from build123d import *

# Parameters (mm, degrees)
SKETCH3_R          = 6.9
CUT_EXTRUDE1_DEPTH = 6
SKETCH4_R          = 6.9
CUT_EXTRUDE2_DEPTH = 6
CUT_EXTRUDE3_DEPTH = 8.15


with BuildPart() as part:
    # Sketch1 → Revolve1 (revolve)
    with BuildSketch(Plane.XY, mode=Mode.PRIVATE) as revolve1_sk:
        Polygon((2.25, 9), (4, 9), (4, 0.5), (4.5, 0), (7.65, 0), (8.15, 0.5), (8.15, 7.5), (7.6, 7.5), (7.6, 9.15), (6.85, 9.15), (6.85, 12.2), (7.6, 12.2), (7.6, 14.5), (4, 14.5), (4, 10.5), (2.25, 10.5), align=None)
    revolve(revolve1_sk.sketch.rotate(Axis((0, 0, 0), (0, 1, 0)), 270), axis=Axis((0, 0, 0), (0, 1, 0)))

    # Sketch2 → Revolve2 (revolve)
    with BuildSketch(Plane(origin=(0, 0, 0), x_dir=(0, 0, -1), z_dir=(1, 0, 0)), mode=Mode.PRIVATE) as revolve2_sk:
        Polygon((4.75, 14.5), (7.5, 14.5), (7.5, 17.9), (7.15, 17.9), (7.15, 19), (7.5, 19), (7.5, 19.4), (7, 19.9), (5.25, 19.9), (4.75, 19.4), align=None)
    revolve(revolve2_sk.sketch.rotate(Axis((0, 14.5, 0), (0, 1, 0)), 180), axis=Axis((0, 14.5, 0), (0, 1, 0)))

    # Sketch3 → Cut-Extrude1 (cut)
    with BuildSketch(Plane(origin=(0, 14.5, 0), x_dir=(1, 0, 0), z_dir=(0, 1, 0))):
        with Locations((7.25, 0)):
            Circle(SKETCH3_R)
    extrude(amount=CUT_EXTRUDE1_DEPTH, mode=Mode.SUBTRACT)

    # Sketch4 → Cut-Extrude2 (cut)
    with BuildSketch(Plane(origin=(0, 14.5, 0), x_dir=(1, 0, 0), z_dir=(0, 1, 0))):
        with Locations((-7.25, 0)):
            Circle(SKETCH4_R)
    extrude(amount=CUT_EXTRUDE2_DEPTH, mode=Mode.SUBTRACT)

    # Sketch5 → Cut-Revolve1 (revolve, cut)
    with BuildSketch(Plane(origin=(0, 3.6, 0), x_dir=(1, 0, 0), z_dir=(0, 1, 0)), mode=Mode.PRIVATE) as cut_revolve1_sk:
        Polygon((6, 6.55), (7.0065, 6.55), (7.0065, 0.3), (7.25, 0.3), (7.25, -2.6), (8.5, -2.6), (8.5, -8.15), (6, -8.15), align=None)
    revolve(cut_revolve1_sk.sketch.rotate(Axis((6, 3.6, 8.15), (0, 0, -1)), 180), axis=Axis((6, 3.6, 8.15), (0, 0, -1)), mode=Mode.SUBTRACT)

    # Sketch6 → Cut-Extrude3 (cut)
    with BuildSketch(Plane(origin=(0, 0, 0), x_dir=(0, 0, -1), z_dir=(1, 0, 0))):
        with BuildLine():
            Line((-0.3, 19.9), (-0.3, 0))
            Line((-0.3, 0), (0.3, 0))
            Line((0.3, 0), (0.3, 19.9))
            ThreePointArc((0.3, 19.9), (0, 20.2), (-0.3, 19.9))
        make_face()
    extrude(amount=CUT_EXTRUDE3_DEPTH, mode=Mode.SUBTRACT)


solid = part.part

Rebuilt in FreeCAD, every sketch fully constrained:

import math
import FreeCAD as App
import Part
import Sketcher
from FreeCAD import Vector

doc = App.newDocument("Part")
params = doc.addObject("Spreadsheet::Sheet", "Params")
for row, (alias, value) in enumerate([
    ("sketch1_height", "7 mm"),
    ("sketch1_height2", "4 mm"),
    ("sketch1_width", "3.6 mm"),
    ("sketch1_height3", "8.5 mm"),
    ("sketch1_height4", "2.3 mm"),
    ("revolution_angle", "360 deg"),
    ("sketch2_width", "3.4 mm"),
    ("sketch2_width2", "1.1 mm"),
    ("sketch2_width3", "0.4 mm"),
    ("sketch2_height", "2.75 mm"),
    ("sketch2_height2", "0.35 mm"),
    ("revolution2_angle", "360 deg"),
    ("sketch3_diameter", "13.8 mm"),
    ("pocket1_length", "6 mm"),
    ("sketch4_diameter", "13.8 mm"),
    ("pocket2_length", "6 mm"),
    ("sketch5_width", "2.5 mm"),
    ("sketch5_height", "14.7 mm"),
    ("sketch5_height2", "2.9 mm"),
    ("sketch5_width2", "1.25 mm"),
    ("sketch5_height3", "5.55 mm"),
    ("groove_angle", "360 deg"),
    ("sketch6_radius", "0.3 mm"),
    ("sketch6_width", "19.9 mm"),
    ("pocket3_length", "8.15 mm"),
], start=1):
    params.set(f"A{row}", alias)
    params.set(f"B{row}", "=" + value)
    params.setAlias(f"B{row}", alias)

body = doc.addObject("PartDesign::Body", "Body")

# Sketch on XY plane
sketch1 = body.newObject("Sketcher::SketchObject", "Sketch")
sketch1.AttachmentSupport = (doc.getObject("XY_Plane"), [""])
sketch1.MapMode = "FlatFace"
sketch1.addGeometry([
    Part.LineSegment(Vector(2.2, 9, 0), Vector(4, 9, 0)),  # 0
    Part.LineSegment(Vector(4, 9, 0), Vector(4, 0.5, 0)),  # 1
    Part.LineSegment(Vector(4, 0.5, 0), Vector(4.5, 0, 0)),  # 2
    Part.LineSegment(Vector(4.5, 0, 0), Vector(7.7, 0, 0)),  # 3
    Part.LineSegment(Vector(7.7, 0, 0), Vector(8.2, 0.5, 0)),  # 4
    Part.LineSegment(Vector(8.2, 0.5, 0), Vector(8.2, 7.5, 0)),  # 5
    Part.LineSegment(Vector(8.2, 7.5, 0), Vector(7.6, 7.5, 0)),  # 6
    Part.LineSegment(Vector(7.6, 7.5, 0), Vector(7.6, 9.2, 0)),  # 7
    Part.LineSegment(Vector(7.6, 9.2, 0), Vector(6.8, 9.2, 0)),  # 8
    Part.LineSegment(Vector(6.8, 9.2, 0), Vector(6.8, 12.2, 0)),  # 9
    Part.LineSegment(Vector(6.8, 12.2, 0), Vector(7.6, 12.2, 0)),  # 10
    Part.LineSegment(Vector(7.6, 12.2, 0), Vector(7.6, 14.5, 0)),  # 11
    Part.LineSegment(Vector(7.6, 14.5, 0), Vector(4, 14.5, 0)),  # 12
    Part.LineSegment(Vector(4, 14.5, 0), Vector(4, 10.5, 0)),  # 13
    Part.LineSegment(Vector(4, 10.5, 0), Vector(2.2, 10.5, 0)),  # 14
    Part.LineSegment(Vector(2.2, 10.5, 0), Vector(2.2, 9, 0)),  # 15
], False)
sketch1.addConstraint([
    Sketcher.Constraint("Coincident", 0, 2, 1, 1),
    Sketcher.Constraint("Coincident", 1, 2, 2, 1),
    Sketcher.Constraint("Coincident", 2, 2, 3, 1),
    Sketcher.Constraint("Coincident", 3, 2, 4, 1),
    Sketcher.Constraint("Coincident", 4, 2, 5, 1),
    Sketcher.Constraint("Coincident", 5, 2, 6, 1),
    Sketcher.Constraint("Coincident", 6, 2, 7, 1),
    Sketcher.Constraint("Coincident", 7, 2, 8, 1),
    Sketcher.Constraint("Coincident", 8, 2, 9, 1),
    Sketcher.Constraint("Coincident", 9, 2, 10, 1),
    Sketcher.Constraint("Coincident", 10, 2, 11, 1),
    Sketcher.Constraint("Coincident", 11, 2, 12, 1),
    Sketcher.Constraint("Coincident", 12, 2, 13, 1),
    Sketcher.Constraint("Coincident", 13, 2, 14, 1),
    Sketcher.Constraint("Coincident", 14, 2, 15, 1),
    Sketcher.Constraint("Coincident", 15, 2, 0, 1),
    Sketcher.Constraint("Horizontal", 0),
    Sketcher.Constraint("Vertical", 1),
    Sketcher.Constraint("Horizontal", 3),
    Sketcher.Constraint("Vertical", 5),
    Sketcher.Constraint("Horizontal", 6),
    Sketcher.Constraint("Vertical", 7),
    Sketcher.Constraint("Horizontal", 8),
    Sketcher.Constraint("Vertical", 9),
    Sketcher.Constraint("Horizontal", 10),
    Sketcher.Constraint("Vertical", 11),
    Sketcher.Constraint("Horizontal", 12),
    Sketcher.Constraint("Vertical", 13),
    Sketcher.Constraint("Horizontal", 14),
    Sketcher.Constraint("Vertical", 15),
    Sketcher.Constraint("PointOnObject", 2, 2, -1),
    Sketcher.Constraint("Perpendicular", 2, 4),
    Sketcher.Constraint("Horizontal", 1, 2, 4, 2),
    Sketcher.Constraint("Vertical", 7, 2, 10, 2),
    Sketcher.Constraint("Vertical", 1, 2, 12, 2),
    Sketcher.Constraint("Equal", 2, 4),
    Sketcher.Constraint("DistanceY", 5, 1, 5, 2, 7.0),
    Sketcher.Constraint("DistanceY", 13, 2, 13, 1, 4.0),
    Sketcher.Constraint("DistanceX", 12, 2, 12, 1, 3.6),
    Sketcher.Constraint("DistanceY", 1, 2, 1, 1, 8.5),
    Sketcher.Constraint("DistanceY", 11, 1, 11, 2, 2.3),
    Sketcher.Constraint("DistanceY", 15, 2, 15, 1, 1.5),
    Sketcher.Constraint("DistanceX", -1, 1, 0, 2, 4.0),
    Sketcher.Constraint("DistanceY", -1, 1, 0, 2, 9.0),
    Sketcher.Constraint("DistanceX", 0, 1, 0, 2, 1.75),
    Sketcher.Constraint("DistanceX", 3, 1, 3, 2, 3.15),
    Sketcher.Constraint("DistanceX", 8, 2, 8, 1, 0.75),
    Sketcher.Constraint("DistanceY", 7, 1, 7, 2, 1.65),
])
sketch1.setExpression("Constraints[36]", "Params.sketch1_height")
sketch1.setExpression("Constraints[37]", "Params.sketch1_height2")
sketch1.setExpression("Constraints[38]", "Params.sketch1_width")
sketch1.setExpression("Constraints[39]", "Params.sketch1_height3")
sketch1.setExpression("Constraints[40]", "Params.sketch1_height4")
revolution = body.newObject("PartDesign::Revolution", "Revolution")
revolution.Profile = sketch1
revolution.ReferenceAxis = (sketch1, ["V_Axis"])
revolution.setExpression("Angle", "Params.revolution_angle")

# Sketch on YZ plane
sketch2 = body.newObject("Sketcher::SketchObject", "Sketch001")
sketch2.AttachmentSupport = (doc.getObject("YZ_Plane"), [""])
sketch2.MapMode = "FlatFace"
sketch2.addGeometry([
    Part.LineSegment(Vector(14.5, -4.75, 0), Vector(14.5, -7.5, 0)),  # 0
    Part.LineSegment(Vector(14.5, -7.5, 0), Vector(17.9, -7.5, 0)),  # 1
    Part.LineSegment(Vector(17.9, -7.5, 0), Vector(17.9, -7.15, 0)),  # 2
    Part.LineSegment(Vector(17.9, -7.15, 0), Vector(19, -7.15, 0)),  # 3
    Part.LineSegment(Vector(19, -7.15, 0), Vector(19, -7.5, 0)),  # 4
    Part.LineSegment(Vector(19, -7.5, 0), Vector(19.4, -7.5, 0)),  # 5
    Part.LineSegment(Vector(19.4, -7.5, 0), Vector(19.9, -7, 0)),  # 6
    Part.LineSegment(Vector(19.9, -7, 0), Vector(19.9, -5.25, 0)),  # 7
    Part.LineSegment(Vector(19.9, -5.25, 0), Vector(19.4, -4.75, 0)),  # 8
    Part.LineSegment(Vector(19.4, -4.75, 0), Vector(14.5, -4.75, 0)),  # 9
], False)
sketch2.addConstraint([
    Sketcher.Constraint("Coincident", 0, 2, 1, 1),
    Sketcher.Constraint("Coincident", 1, 2, 2, 1),
    Sketcher.Constraint("Coincident", 2, 2, 3, 1),
    Sketcher.Constraint("Coincident", 3, 2, 4, 1),
    Sketcher.Constraint("Coincident", 4, 2, 5, 1),
    Sketcher.Constraint("Coincident", 5, 2, 6, 1),
    Sketcher.Constraint("Coincident", 6, 2, 7, 1),
    Sketcher.Constraint("Coincident", 7, 2, 8, 1),
    Sketcher.Constraint("Coincident", 8, 2, 9, 1),
    Sketcher.Constraint("Coincident", 9, 2, 0, 1),
    Sketcher.Constraint("Vertical", 0),
    Sketcher.Constraint("Horizontal", 1),
    Sketcher.Constraint("Vertical", 2),
    Sketcher.Constraint("Horizontal", 3),
    Sketcher.Constraint("Vertical", 4),
    Sketcher.Constraint("Horizontal", 5),
    Sketcher.Constraint("Vertical", 7),
    Sketcher.Constraint("Horizontal", 9),
    Sketcher.Constraint("Perpendicular", 6, 8),
    Sketcher.Constraint("Horizontal", 1, 2, 4, 2),
    Sketcher.Constraint("Vertical", 5, 2, 8, 2),
    Sketcher.Constraint("Equal", 6, 8),
    Sketcher.Constraint("DistanceX", 1, 1, 1, 2, 3.4),
    Sketcher.Constraint("DistanceX", 3, 1, 3, 2, 1.1),
    Sketcher.Constraint("DistanceX", 5, 1, 5, 2, 0.4),
    Sketcher.Constraint("DistanceX", -1, 1, 3, 2, 19.0),
    Sketcher.Constraint("DistanceY", 6, 2, -1, 1, 7.0),
    Sketcher.Constraint("DistanceX", 2, 2, 6, 2, 2.0),
    Sketcher.Constraint("DistanceY", 0, 2, 0, 1, 2.75),
    Sketcher.Constraint("DistanceY", 2, 1, 2, 2, 0.35),
])
sketch2.setExpression("Constraints[22]", "Params.sketch2_width")
sketch2.setExpression("Constraints[23]", "Params.sketch2_width2")
sketch2.setExpression("Constraints[24]", "Params.sketch2_width3")
sketch2.setExpression("Constraints[28]", "Params.sketch2_height")
sketch2.setExpression("Constraints[29]", "Params.sketch2_height2")
revolution2 = body.newObject("PartDesign::Revolution", "Revolution001")
revolution2.Profile = sketch2
revolution2.ReferenceAxis = (sketch2, ["H_Axis"])
revolution2.setExpression("Angle", "Params.revolution2_angle")

# Sketch on XZ plane
sketch3 = body.newObject("Sketcher::SketchObject", "Sketch002")
sketch3.AttachmentSupport = (doc.getObject("XZ_Plane"), [""])
sketch3.MapMode = "FlatFace"
sketch3.AttachmentOffset = App.Placement(Vector(0, 0, -14.5), App.Rotation())
sketch3.addGeometry(Part.Circle(Vector(7, 0, 0), Vector(0, 0, 1), 7), False)
sketch3.addConstraint([
    Sketcher.Constraint("PointOnObject", 0, 3, -1),
    Sketcher.Constraint("Diameter", 0, 13.8),
    Sketcher.Constraint("DistanceX", -1, 1, 0, 3, 7.25),
])
sketch3.setExpression("Constraints[1]", "Params.sketch3_diameter")
pocket1 = body.newObject("PartDesign::Pocket", "Pocket")
pocket1.Profile = sketch3
pocket1.setExpression("Length", "Params.pocket1_length")

# Sketch on XZ plane
sketch4 = body.newObject("Sketcher::SketchObject", "Sketch003")
sketch4.AttachmentSupport = (doc.getObject("XZ_Plane"), [""])
sketch4.MapMode = "FlatFace"
sketch4.AttachmentOffset = App.Placement(Vector(0, 0, -14.5), App.Rotation())
sketch4.addGeometry(Part.Circle(Vector(-7, 0, 0), Vector(0, 0, 1), 7), False)
sketch4.addConstraint([
    Sketcher.Constraint("PointOnObject", 0, 3, -1),
    Sketcher.Constraint("Diameter", 0, 13.8),
    Sketcher.Constraint("DistanceX", 0, 3, -1, 1, 7.25),
])
sketch4.setExpression("Constraints[1]", "Params.sketch4_diameter")
pocket2 = body.newObject("PartDesign::Pocket", "Pocket001")
pocket2.Profile = sketch4
pocket2.setExpression("Length", "Params.pocket2_length")

# Sketch on XZ plane
sketch5 = body.newObject("Sketcher::SketchObject", "Sketch004")
sketch5.AttachmentSupport = (doc.getObject("XZ_Plane"), [""])
sketch5.MapMode = "FlatFace"
sketch5.AttachmentOffset = App.Placement(Vector(0, 0, -3.6), App.Rotation())
sketch5.addGeometry([
    Part.LineSegment(Vector(7.01, -6.55, 0), Vector(6, -6.55, 0)),  # 0
    Part.LineSegment(Vector(6, -6.55, 0), Vector(6, 8.15, 0)),  # 1
    Part.LineSegment(Vector(6, 8.15, 0), Vector(8.5, 8.15, 0)),  # 2
    Part.LineSegment(Vector(8.5, 8.15, 0), Vector(8.5, 2.6, 0)),  # 3
    Part.LineSegment(Vector(8.5, 2.6, 0), Vector(7.25, 2.6, 0)),  # 4
    Part.LineSegment(Vector(7.25, 2.6, 0), Vector(7.25, -0.3, 0)),  # 5
    Part.LineSegment(Vector(7.25, -0.3, 0), Vector(7.01, -0.3, 0)),  # 6
    Part.LineSegment(Vector(7.01, -0.3, 0), Vector(7.01, -6.55, 0)),  # 7
], False)
sketch5.addGeometry(Part.LineSegment(Vector(6, 8.15, 0), Vector(6, -6.55, 0)), True)  # axis
sketch5.addConstraint([
    Sketcher.Constraint("Coincident", 0, 2, 1, 1),
    Sketcher.Constraint("Coincident", 1, 2, 2, 1),
    Sketcher.Constraint("Coincident", 2, 2, 3, 1),
    Sketcher.Constraint("Coincident", 3, 2, 4, 1),
    Sketcher.Constraint("Coincident", 4, 2, 5, 1),
    Sketcher.Constraint("Coincident", 5, 2, 6, 1),
    Sketcher.Constraint("Coincident", 6, 2, 7, 1),
    Sketcher.Constraint("Coincident", 7, 2, 0, 1),
    Sketcher.Constraint("Horizontal", 0),
    Sketcher.Constraint("Vertical", 1),
    Sketcher.Constraint("Horizontal", 2),
    Sketcher.Constraint("Vertical", 3),
    Sketcher.Constraint("Horizontal", 4),
    Sketcher.Constraint("Vertical", 5),
    Sketcher.Constraint("Horizontal", 6),
    Sketcher.Constraint("Vertical", 7),
    Sketcher.Constraint("Vertical", 8),
    Sketcher.Constraint("Coincident", 8, 1, 1, 2),
    Sketcher.Constraint("Horizontal", 7, 2, 8, 2),
    Sketcher.Constraint("DistanceX", 2, 1, 2, 2, 2.5),
    Sketcher.Constraint("DistanceY", 1, 1, 1, 2, 14.7),
    Sketcher.Constraint("DistanceY", 5, 2, 5, 1, 2.9),
    Sketcher.Constraint("DistanceX", -1, 1, 0, 2, 6.0),
    Sketcher.Constraint("DistanceX", 4, 2, 4, 1, 1.25),
    Sketcher.Constraint("DistanceY", 3, 2, 3, 1, 5.55),
    Sketcher.Constraint("DistanceY", -1, 1, 3, 2, 2.6),
    Sketcher.Constraint("DistanceX", 0, 2, 0, 1, 1.0065),
])
sketch5.setExpression("Constraints[19]", "Params.sketch5_width")
sketch5.setExpression("Constraints[20]", "Params.sketch5_height")
sketch5.setExpression("Constraints[21]", "Params.sketch5_height2")
sketch5.setExpression("Constraints[23]", "Params.sketch5_width2")
sketch5.setExpression("Constraints[24]", "Params.sketch5_height3")
groove = body.newObject("PartDesign::Groove", "Groove")
groove.Profile = sketch5
groove.ReferenceAxis = (sketch5, ["Axis0"])
groove.setExpression("Angle", "Params.groove_angle")

# Sketch on YZ plane
sketch6 = body.newObject("Sketcher::SketchObject", "Sketch005")
sketch6.AttachmentSupport = (doc.getObject("YZ_Plane"), [""])
sketch6.MapMode = "FlatFace"
sketch6.addGeometry([
    Part.LineSegment(Vector(19.9, 0.3, 0), Vector(0, 0.3, 0)),
    Part.LineSegment(Vector(0, 0.3, 0), Vector(0, -0.3, 0)),
    Part.LineSegment(Vector(0, -0.3, 0), Vector(19.9, -0.3, 0)),
    Part.ArcOfCircle(Part.Circle(Vector(19.9, 0, 0), Vector(0, 0, 1), 0.3), math.radians(-90), math.radians(90)),
], False)
sketch6.addConstraint([
    Sketcher.Constraint("Coincident", 0, 2, 1, 1),
    Sketcher.Constraint("Coincident", 1, 2, 2, 1),
    Sketcher.Constraint("Tangent", 2, 2, 3, 1),
    Sketcher.Constraint("Tangent", 3, 2, 0, 1),
    Sketcher.Constraint("Horizontal", 0),
    Sketcher.Constraint("Vertical", 1),
    Sketcher.Constraint("Horizontal", 2),
    Sketcher.Constraint("Symmetric", 0, 2, 1, 2, -1, 1),
    Sketcher.Constraint("Radius", 3, 0.3),
    Sketcher.Constraint("DistanceX", 0, 2, 0, 1, 19.9),
])
sketch6.setExpression("Constraints[8]", "Params.sketch6_radius")
sketch6.setExpression("Constraints[9]", "Params.sketch6_width")
pocket3 = body.newObject("PartDesign::Pocket", "Pocket002")
pocket3.Profile = sketch6
pocket3.setExpression("Length", "Params.pocket3_length")
pocket3.Reversed = True

doc.recompute()
